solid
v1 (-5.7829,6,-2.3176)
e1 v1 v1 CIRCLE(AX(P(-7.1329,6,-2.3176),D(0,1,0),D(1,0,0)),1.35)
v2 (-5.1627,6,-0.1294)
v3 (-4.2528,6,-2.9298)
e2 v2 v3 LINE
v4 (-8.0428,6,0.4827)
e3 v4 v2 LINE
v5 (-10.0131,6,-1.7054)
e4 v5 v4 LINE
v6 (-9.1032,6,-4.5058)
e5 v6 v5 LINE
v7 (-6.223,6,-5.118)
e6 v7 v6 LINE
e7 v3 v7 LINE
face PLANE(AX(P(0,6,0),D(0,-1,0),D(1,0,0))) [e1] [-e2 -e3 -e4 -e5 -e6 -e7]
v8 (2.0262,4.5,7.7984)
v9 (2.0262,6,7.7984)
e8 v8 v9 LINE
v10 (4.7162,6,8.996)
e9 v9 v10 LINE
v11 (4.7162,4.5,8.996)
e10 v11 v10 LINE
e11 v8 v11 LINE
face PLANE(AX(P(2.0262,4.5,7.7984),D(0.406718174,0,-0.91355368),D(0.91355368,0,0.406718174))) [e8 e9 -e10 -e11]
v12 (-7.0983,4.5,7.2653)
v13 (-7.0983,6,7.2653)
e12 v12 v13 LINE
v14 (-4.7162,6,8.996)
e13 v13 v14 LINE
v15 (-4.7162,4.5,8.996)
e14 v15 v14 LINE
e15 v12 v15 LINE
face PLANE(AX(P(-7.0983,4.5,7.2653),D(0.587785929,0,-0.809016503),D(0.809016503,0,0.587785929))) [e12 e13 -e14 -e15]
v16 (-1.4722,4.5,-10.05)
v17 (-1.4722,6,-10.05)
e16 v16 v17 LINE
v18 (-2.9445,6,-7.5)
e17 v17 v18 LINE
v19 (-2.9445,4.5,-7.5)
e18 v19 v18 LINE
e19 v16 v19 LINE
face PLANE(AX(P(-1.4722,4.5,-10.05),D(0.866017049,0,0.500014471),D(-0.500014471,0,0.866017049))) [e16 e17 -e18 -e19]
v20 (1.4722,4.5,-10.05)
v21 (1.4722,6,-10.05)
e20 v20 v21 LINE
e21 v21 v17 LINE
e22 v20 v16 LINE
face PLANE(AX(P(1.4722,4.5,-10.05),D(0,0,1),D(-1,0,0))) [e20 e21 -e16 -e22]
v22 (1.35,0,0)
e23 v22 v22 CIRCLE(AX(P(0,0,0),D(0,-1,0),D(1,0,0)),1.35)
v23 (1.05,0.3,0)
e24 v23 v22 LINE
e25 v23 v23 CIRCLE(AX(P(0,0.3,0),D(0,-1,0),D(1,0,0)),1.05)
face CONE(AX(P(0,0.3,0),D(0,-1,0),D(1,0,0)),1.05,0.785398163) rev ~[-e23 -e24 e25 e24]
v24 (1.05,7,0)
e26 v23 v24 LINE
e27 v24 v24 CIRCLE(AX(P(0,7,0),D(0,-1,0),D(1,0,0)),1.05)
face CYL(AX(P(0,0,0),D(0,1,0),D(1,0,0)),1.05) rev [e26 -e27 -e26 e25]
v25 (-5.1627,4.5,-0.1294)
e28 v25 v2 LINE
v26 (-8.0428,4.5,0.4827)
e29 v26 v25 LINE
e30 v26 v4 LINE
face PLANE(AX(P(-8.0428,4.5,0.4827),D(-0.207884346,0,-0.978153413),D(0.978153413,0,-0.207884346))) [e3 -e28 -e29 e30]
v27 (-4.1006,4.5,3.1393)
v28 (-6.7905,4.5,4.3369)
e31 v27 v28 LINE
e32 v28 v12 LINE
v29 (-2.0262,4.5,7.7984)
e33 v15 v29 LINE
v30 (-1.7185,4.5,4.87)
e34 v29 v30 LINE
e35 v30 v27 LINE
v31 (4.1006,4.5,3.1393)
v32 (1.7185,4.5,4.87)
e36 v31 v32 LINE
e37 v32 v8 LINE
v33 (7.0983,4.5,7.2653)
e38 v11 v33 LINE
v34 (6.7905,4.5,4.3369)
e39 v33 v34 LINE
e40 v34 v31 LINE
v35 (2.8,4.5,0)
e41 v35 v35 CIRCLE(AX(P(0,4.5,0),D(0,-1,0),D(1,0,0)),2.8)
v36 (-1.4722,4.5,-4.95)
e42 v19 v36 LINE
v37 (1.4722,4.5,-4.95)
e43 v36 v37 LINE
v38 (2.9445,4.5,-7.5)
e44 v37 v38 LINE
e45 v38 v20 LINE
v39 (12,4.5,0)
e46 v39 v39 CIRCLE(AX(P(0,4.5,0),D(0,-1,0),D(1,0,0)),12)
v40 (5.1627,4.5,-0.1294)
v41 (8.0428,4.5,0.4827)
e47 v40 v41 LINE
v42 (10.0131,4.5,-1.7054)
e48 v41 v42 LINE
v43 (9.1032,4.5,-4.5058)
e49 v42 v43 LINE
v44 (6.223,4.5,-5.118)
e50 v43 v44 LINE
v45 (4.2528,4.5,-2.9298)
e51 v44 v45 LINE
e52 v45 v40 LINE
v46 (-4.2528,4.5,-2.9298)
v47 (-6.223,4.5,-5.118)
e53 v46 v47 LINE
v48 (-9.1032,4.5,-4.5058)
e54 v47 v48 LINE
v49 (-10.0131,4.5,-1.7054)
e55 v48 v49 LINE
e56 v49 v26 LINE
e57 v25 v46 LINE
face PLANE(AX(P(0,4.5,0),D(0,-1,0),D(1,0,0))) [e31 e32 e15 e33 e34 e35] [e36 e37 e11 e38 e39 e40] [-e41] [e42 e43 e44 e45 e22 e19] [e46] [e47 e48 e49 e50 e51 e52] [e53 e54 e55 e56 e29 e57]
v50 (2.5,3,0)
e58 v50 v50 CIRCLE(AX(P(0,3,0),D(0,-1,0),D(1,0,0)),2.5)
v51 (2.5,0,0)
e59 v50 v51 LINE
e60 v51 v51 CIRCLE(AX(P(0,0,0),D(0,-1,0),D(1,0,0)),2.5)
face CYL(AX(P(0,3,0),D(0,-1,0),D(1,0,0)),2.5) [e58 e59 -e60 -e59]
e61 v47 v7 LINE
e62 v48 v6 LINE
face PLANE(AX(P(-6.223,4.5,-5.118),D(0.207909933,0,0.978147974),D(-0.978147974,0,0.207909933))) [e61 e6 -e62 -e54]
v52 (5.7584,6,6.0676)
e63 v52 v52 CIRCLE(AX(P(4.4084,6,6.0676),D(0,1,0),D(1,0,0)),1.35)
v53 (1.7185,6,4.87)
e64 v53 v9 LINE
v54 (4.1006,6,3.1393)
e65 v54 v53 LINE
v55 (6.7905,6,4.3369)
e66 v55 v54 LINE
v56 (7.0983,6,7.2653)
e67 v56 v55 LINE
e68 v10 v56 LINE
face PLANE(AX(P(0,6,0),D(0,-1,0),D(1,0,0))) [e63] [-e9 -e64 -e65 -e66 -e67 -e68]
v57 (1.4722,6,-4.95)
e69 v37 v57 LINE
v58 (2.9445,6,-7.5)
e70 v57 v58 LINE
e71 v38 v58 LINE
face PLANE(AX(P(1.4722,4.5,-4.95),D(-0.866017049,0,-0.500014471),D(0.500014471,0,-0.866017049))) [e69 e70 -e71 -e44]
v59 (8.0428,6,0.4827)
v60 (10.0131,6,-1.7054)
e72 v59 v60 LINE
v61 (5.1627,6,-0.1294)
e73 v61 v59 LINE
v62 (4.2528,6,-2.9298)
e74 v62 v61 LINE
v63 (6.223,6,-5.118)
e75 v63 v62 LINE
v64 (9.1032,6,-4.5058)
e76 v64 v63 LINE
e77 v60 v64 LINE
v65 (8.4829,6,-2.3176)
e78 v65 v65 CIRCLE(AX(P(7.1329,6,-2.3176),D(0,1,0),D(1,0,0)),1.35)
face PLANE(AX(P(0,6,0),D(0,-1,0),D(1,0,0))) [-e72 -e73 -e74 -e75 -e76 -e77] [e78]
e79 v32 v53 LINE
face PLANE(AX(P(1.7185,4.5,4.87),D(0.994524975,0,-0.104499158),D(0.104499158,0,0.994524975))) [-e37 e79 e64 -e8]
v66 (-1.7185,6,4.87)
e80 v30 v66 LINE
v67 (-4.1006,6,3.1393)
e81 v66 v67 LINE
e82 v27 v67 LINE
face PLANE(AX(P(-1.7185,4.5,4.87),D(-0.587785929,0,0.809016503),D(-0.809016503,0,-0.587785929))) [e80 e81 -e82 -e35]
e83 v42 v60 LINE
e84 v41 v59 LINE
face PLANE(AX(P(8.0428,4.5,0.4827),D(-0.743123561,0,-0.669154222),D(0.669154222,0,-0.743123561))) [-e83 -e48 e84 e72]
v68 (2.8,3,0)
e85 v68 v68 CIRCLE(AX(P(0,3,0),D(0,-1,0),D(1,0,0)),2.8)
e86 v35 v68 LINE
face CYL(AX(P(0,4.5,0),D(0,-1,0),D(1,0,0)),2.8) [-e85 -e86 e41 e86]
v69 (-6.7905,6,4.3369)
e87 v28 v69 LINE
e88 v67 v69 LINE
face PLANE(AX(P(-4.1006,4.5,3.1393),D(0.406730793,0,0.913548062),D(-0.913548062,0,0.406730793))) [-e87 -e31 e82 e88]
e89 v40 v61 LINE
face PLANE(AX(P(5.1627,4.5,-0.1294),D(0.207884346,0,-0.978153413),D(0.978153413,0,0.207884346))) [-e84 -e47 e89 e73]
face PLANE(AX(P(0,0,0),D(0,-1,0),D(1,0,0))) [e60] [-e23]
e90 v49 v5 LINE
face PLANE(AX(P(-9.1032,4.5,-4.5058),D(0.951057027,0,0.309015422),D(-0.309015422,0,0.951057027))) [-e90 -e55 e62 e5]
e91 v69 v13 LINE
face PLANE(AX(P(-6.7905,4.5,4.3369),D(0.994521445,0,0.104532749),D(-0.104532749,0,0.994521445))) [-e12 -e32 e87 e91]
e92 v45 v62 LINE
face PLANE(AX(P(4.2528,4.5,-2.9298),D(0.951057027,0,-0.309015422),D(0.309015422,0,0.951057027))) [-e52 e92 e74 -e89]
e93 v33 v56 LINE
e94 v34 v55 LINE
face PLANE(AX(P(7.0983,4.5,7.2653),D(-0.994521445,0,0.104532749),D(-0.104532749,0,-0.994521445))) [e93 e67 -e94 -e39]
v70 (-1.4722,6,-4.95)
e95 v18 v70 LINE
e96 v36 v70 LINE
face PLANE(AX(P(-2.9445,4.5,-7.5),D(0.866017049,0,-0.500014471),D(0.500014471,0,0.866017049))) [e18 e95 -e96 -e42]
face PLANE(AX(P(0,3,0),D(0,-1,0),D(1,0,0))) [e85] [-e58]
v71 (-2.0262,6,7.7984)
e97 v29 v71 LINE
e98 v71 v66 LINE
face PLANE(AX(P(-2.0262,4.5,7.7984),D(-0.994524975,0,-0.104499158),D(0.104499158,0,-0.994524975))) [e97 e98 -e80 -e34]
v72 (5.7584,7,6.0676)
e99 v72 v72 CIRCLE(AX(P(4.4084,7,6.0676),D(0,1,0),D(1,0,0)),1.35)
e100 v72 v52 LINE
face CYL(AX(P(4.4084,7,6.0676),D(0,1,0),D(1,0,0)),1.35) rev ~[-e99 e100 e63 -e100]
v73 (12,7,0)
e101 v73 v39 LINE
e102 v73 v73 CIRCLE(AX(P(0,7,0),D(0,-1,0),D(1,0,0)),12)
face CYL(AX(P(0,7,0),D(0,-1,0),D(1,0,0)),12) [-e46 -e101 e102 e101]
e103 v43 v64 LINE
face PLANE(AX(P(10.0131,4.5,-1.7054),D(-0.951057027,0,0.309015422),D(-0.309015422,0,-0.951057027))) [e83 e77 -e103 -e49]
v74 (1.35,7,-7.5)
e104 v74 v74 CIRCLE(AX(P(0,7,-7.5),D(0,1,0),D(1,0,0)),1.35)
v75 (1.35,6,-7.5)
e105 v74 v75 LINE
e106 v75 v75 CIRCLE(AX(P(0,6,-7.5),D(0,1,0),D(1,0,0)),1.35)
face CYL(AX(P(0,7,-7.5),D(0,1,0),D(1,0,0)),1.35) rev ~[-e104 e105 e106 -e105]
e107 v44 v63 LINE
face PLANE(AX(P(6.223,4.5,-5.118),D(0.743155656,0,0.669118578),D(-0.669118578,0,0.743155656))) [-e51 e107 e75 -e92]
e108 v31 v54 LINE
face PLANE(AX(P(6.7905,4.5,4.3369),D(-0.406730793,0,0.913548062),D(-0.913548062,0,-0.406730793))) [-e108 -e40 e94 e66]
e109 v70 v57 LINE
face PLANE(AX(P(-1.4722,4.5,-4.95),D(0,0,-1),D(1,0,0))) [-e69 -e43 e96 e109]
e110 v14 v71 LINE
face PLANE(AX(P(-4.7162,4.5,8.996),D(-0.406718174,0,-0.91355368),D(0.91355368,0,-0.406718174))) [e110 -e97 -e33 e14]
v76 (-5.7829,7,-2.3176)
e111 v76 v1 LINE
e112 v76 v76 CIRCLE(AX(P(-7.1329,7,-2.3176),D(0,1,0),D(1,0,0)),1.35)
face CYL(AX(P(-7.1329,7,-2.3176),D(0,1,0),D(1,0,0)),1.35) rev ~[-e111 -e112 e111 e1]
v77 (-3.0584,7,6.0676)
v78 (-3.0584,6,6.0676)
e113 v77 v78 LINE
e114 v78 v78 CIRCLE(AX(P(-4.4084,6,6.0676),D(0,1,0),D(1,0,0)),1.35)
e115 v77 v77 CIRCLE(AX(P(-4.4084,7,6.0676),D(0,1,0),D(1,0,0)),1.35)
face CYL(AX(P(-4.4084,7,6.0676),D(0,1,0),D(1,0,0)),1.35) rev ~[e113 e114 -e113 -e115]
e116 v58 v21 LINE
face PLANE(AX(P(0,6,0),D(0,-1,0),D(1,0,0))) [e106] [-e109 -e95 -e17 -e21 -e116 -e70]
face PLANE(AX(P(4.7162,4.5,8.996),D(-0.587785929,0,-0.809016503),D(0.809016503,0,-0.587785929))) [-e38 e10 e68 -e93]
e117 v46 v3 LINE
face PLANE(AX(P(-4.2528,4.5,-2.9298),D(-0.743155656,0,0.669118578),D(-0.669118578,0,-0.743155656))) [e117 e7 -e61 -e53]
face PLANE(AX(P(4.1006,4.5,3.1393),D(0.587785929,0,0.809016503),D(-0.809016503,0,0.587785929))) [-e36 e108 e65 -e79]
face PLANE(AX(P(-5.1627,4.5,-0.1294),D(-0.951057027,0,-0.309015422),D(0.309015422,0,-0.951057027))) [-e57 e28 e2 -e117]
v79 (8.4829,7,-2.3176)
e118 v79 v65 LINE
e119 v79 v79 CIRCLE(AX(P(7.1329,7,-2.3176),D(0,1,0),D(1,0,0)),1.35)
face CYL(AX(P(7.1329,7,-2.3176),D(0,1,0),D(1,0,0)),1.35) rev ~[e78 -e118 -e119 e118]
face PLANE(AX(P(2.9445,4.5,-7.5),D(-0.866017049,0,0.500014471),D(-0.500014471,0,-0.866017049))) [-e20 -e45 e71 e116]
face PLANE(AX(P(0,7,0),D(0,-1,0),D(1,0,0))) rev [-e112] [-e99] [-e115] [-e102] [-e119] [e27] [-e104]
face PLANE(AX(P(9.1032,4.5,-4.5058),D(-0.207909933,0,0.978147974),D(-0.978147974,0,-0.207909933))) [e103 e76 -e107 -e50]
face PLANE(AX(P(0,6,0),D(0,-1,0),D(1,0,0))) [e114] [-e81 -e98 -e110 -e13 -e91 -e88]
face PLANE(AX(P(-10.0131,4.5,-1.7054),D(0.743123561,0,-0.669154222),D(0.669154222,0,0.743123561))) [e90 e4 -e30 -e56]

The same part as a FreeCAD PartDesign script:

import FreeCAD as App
import Part
import Sketcher
from FreeCAD import Vector
Q = App.Units.Quantity


def edges_at(feature, points):
    """Names of the edges that pass closest to the given points."""
    edges = feature.Shape.Edges
    near = lambda p: min(range(len(edges)), key=lambda i: edges[i].distToShape(Part.Vertex(*p))[0])
    return sorted({f"Edge{near(p) + 1}" for p in points})


def add_polygon(sketch, points):
    """Adds a closed chain of lines whose ends are joined by coincident constraints."""
    first, n = sketch.GeometryCount, len(points)
    for a, b in zip(points, points[1:] + points[:1]):
        sketch.addGeometry(Part.LineSegment(App.Vector(*a, 0), App.Vector(*b, 0)), False)
    for i in range(n):
        sketch.addConstraint(Sketcher.Constraint("Coincident", first + i, 2, first + (i + 1) % n, 1))

doc = App.newDocument("Part")
body = doc.addObject("PartDesign::Body", "Body")

# Sketch on XY plane
sketch1 = doc.addObject("Sketcher::SketchObject", "Sketch")
body.addObject(sketch1)
sketch1.AttachmentSupport = (doc.XY_Plane, [""])
sketch1.MapMode = "FlatFace"
add_polygon(sketch1, [(1.05, 7), (1.05, 0), (2.5, 0), (2.5, 3), (2.8, 3), (2.8, 4.5), (12, 4.5), (12, 7)])  # lines 0-7
sketch1.addConstraint(Sketcher.Constraint("Vertical", 0))
sketch1.addConstraint(Sketcher.Constraint("Horizontal", 1))
sketch1.addConstraint(Sketcher.Constraint("Vertical", 2))
sketch1.addConstraint(Sketcher.Constraint("Horizontal", 3))
sketch1.addConstraint(Sketcher.Constraint("Vertical", 4))
sketch1.addConstraint(Sketcher.Constraint("Horizontal", 5))
sketch1.addConstraint(Sketcher.Constraint("Vertical", 6))
sketch1.addConstraint(Sketcher.Constraint("Horizontal", 7))
sketch1.addConstraint(Sketcher.Constraint("PointOnObject", 0, 2, -1))
sketch1.addConstraint(Sketcher.Constraint("DistanceY", 2, 1, 2, 2, Q("3 mm")))
sketch1.addConstraint(Sketcher.Constraint("DistanceX", 3, 1, 3, 2, Q("0.3 mm")))
sketch1.addConstraint(Sketcher.Constraint("DistanceY", 4, 1, 4, 2, Q("1.5 mm")))
sketch1.addConstraint(Sketcher.Constraint("DistanceY", 6, 1, 6, 2, Q("2.5 mm")))
sketch1.addConstraint(Sketcher.Constraint("DistanceX", -1, 1, 5, 2, Q("12 mm")))
sketch1.addConstraint(Sketcher.Constraint("DistanceX", -1, 1, 1, 2, Q("2.5 mm")))
sketch1.addConstraint(Sketcher.Constraint("DistanceX", -1, 1, 0, 2, Q("1.05 mm")))
revolution = doc.addObject("PartDesign::Revolution", "Revolution")
body.addObject(revolution)
revolution.Profile = sketch1
revolution.ReferenceAxis = (sketch1, ["V_Axis"])
revolution.Angle = 360

# Sketch on XZ plane
sketch2 = doc.addObject("Sketcher::SketchObject", "Sketch001")
body.addObject(sketch2)
sketch2.AttachmentSupport = (doc.XZ_Plane, [""])
sketch2.MapMode = "FlatFace"
sketch2.AttachmentOffset = App.Placement(Vector(0, 0, -7), App.Rotation())
sketch2.addGeometry(Part.Circle(Vector(0, -7.5, 0), Vector(0, 0, 1), 1.4), False)
sketch2.addGeometry(Part.Circle(Vector(-7.1, -2.3, 0), Vector(0, 0, 1), 1.4), False)
sketch2.addGeometry(Part.Circle(Vector(-4.4, 6.1, 0), Vector(0, 0, 1), 1.4), False)
sketch2.addGeometry(Part.Circle(Vector(4.4, 6.1, 0), Vector(0, 0, 1), 1.4), False)
sketch2.addGeometry(Part.Circle(Vector(7.1, -2.3, 0), Vector(0, 0, 1), 1.4), False)
sketch2.addConstraint(Sketcher.Constraint("Equal", 0, 1))
sketch2.addConstraint(Sketcher.Constraint("Equal", 1, 2))
sketch2.addConstraint(Sketcher.Constraint("Equal", 2, 3))
sketch2.addConstraint(Sketcher.Constraint("Equal", 3, 4))
sketch2.addConstraint(Sketcher.Constraint("Symmetric", 2, 3, 3, 3, -2))
sketch2.addConstraint(Sketcher.Constraint("Symmetric", 1, 3, 4, 3, -2))
sketch2.addConstraint(Sketcher.Constraint("PointOnObject", 0, 3, -2))
sketch2.addConstraint(Sketcher.Constraint("Diameter", 0, Q("2.7 mm")))
sketch2.addConstraint(Sketcher.Constraint("DistanceY", 0, 3, -1, 1, Q("7.5 mm")))
sketch2.addConstraint(Sketcher.Constraint("DistanceX", 1, 3, -1, 1, Q("7.133 mm")))
sketch2.addConstraint(Sketcher.Constraint("DistanceY", 1, 3, -1, 1, Q("2.3176 mm")))
sketch2.addConstraint(Sketcher.Constraint("DistanceX", 2, 3, -1, 1, Q("4.4084 mm")))
sketch2.addConstraint(Sketcher.Constraint("DistanceY", -1, 1, 2, 3, Q("6.0676 mm")))
pocket1 = doc.addObject("PartDesign::Pocket", "Pocket")
body.addObject(pocket1)
pocket1.Profile = sketch2
pocket1.Length = 10
pocket1.Reversed = True

# Sketch on XZ plane
sketch3 = doc.addObject("Sketcher::SketchObject", "Sketch002")
body.addObject(sketch3)
sketch3.AttachmentSupport = (doc.XZ_Plane, [""])
sketch3.MapMode = "FlatFace"
sketch3.AttachmentOffset = App.Placement(Vector(0, 0, -4.5), App.Rotation())
add_polygon(sketch3, [(-1.5, -5), (-2.9, -7.5), (-1.5, -10.1), (1.5, -10.1), (2.9, -7.5), (1.5, -5)])  # lines 0-5
add_polygon(sketch3, [(4.3, -2.9), (6.2, -5.1), (9.1, -4.5), (10, -1.7), (8, 0.5), (5.2, -0.1)])  # lines 6-11
add_polygon(sketch3, [(4.1, 3.1), (6.8, 4.3), (7.1, 7.3), (4.7, 9), (2, 7.8), (1.7, 4.9)])  # lines 12-17
add_polygon(sketch3, [(-1.7, 4.9), (-2, 7.8), (-4.7, 9), (-7.1, 7.3), (-6.8, 4.3), (-4.1, 3.1)])  # lines 18-23
add_polygon(sketch3, [(-5.2, -0.1), (-8, 0.5), (-10, -1.7), (-9.1, -4.5), (-6.2, -5.1), (-4.3, -2.9)])  # lines 24-29
sketch3.addConstraint(Sketcher.Constraint("Horizontal", 2))
sketch3.addConstraint(Sketcher.Constraint("Horizontal", 5))
sketch3.addConstraint(Sketcher.Constraint("Symmetric", 0, 2, 3, 2, -2))
sketch3.addConstraint(Sketcher.Constraint("Symmetric", 15, 2, 18, 2, -2))
sketch3.addConstraint(Sketcher.Constraint("Symmetric", 14, 2, 19, 2, -2))
sketch3.addConstraint(Sketcher.Constraint("Symmetric", 13, 2, 20, 2, -2))
sketch3.addConstraint(Sketcher.Constraint("Symmetric", 12, 2, 21, 2, -2))
sketch3.addConstraint(Sketcher.Constraint("Symmetric", 17, 2, 22, 2, -2))
sketch3.addConstraint(Sketcher.Constraint("Symmetric", 16, 2, 23, 2, -2))
sketch3.addConstraint(Sketcher.Constraint("Symmetric", 9, 2, 24, 2, -2))
sketch3.addConstraint(Sketcher.Constraint("Symmetric", 8, 2, 25, 2, -2))
sketch3.addConstraint(Sketcher.Constraint("Symmetric", 7, 2, 26, 2, -2))
sketch3.addConstraint(Sketcher.Constraint("Symmetric", 6, 2, 27, 2, -2))
sketch3.addConstraint(Sketcher.Constraint("Symmetric", 11, 2, 28, 2, -2))
sketch3.addConstraint(Sketcher.Constraint("Symmetric", 10, 2, 29, 2, -2))
sketch3.addConstraint(Sketcher.Constraint("Parallel", 0, 3))
sketch3.addConstraint(Sketcher.Constraint("Parallel", 1, 4))
sketch3.addConstraint(Sketcher.Constraint("Parallel", 6, 9))
sketch3.addConstraint(Sketcher.Constraint("Parallel", 7, 10))
sketch3.addConstraint(Sketcher.Constraint("Parallel", 8, 11))
sketch3.addConstraint(Sketcher.Constraint("Parallel", 12, 15))
sketch3.addConstraint(Sketcher.Constraint("Parallel", 13, 16))
sketch3.addConstraint(Sketcher.Constraint("Parallel", 14, 17))
sketch3.addConstraint(Sketcher.Constraint("Vertical", 2, 2, 4, 2))
sketch3.addConstraint(Sketcher.Constraint("Vertical", 1, 2, 5, 2))
sketch3.addConstraint(Sketcher.Constraint("Equal", 4, 6))
sketch3.addConstraint(Sketcher.Constraint("Equal", 6, 7))
sketch3.addConstraint(Sketcher.Constraint("Equal", 7, 8))
sketch3.addConstraint(Sketcher.Constraint("Equal", 8, 9))
sketch3.addConstraint(Sketcher.Constraint("Equal", 11, 12))
sketch3.addConstraint(Sketcher.Constraint("Equal", 12, 13))
sketch3.addConstraint(Sketcher.Constraint("Equal", 13, 14))
sketch3.addConstraint(Sketcher.Constraint("Equal", 14, 15))
sketch3.addConstraint(Sketcher.Constraint("DistanceY", 2, 2, 4, 2, Q("5.1 mm")))
sketch3.addConstraint(Sketcher.Constraint("Angle", 0, Q("-120.001 deg")))
sketch3.addConstraint(Sketcher.Constraint("Angle", 6, Q("-48.001 deg")))
sketch3.addConstraint(Sketcher.Constraint("Angle", 7, Q("12 deg")))
sketch3.addConstraint(Sketcher.Constraint("Angle", 8, Q("72 deg")))
sketch3.addConstraint(Sketcher.Constraint("Angle", 12, Q("23.9996 deg")))
sketch3.addConstraint(Sketcher.Constraint("Angle", 13, Q("83.9998 deg")))
sketch3.addConstraint(Sketcher.Constraint("Angle", 14, Q("144 deg")))
sketch3.addConstraint(Sketcher.Constraint("DistanceY", 0, 2, -1, 1, Q("7.5 mm")))
sketch3.addConstraint(Sketcher.Constraint("DistanceY", -1, 1, 16, 2, Q("4.87 mm")))
sketch3.addConstraint(Sketcher.Constraint("DistanceX", 2, 1, 2, 2, Q("2.9444 mm")))
sketch3.addConstraint(Sketcher.Constraint("DistanceX", -1, 1, 6, 2, Q("6.223 mm")))
sketch3.addConstraint(Sketcher.Constraint("DistanceY", 6, 2, -1, 1, Q("5.118 mm")))
sketch3.addConstraint(Sketcher.Constraint("DistanceX", 17, 2, 10, 2, Q("1.062 mm")))
pocket2 = doc.addObject("PartDesign::Pocket", "Pocket001")
body.addObject(pocket2)
pocket2.Profile = sketch3
pocket2.Length = 1.5
doc.recompute()

chamfer = doc.addObject("PartDesign::Chamfer", "Chamfer")
body.addObject(chamfer)
chamfer.Base = (pocket2, edges_at(pocket2, [(-1.05, 0, 0)]))
chamfer.Size = 0.3

doc.recompute()
